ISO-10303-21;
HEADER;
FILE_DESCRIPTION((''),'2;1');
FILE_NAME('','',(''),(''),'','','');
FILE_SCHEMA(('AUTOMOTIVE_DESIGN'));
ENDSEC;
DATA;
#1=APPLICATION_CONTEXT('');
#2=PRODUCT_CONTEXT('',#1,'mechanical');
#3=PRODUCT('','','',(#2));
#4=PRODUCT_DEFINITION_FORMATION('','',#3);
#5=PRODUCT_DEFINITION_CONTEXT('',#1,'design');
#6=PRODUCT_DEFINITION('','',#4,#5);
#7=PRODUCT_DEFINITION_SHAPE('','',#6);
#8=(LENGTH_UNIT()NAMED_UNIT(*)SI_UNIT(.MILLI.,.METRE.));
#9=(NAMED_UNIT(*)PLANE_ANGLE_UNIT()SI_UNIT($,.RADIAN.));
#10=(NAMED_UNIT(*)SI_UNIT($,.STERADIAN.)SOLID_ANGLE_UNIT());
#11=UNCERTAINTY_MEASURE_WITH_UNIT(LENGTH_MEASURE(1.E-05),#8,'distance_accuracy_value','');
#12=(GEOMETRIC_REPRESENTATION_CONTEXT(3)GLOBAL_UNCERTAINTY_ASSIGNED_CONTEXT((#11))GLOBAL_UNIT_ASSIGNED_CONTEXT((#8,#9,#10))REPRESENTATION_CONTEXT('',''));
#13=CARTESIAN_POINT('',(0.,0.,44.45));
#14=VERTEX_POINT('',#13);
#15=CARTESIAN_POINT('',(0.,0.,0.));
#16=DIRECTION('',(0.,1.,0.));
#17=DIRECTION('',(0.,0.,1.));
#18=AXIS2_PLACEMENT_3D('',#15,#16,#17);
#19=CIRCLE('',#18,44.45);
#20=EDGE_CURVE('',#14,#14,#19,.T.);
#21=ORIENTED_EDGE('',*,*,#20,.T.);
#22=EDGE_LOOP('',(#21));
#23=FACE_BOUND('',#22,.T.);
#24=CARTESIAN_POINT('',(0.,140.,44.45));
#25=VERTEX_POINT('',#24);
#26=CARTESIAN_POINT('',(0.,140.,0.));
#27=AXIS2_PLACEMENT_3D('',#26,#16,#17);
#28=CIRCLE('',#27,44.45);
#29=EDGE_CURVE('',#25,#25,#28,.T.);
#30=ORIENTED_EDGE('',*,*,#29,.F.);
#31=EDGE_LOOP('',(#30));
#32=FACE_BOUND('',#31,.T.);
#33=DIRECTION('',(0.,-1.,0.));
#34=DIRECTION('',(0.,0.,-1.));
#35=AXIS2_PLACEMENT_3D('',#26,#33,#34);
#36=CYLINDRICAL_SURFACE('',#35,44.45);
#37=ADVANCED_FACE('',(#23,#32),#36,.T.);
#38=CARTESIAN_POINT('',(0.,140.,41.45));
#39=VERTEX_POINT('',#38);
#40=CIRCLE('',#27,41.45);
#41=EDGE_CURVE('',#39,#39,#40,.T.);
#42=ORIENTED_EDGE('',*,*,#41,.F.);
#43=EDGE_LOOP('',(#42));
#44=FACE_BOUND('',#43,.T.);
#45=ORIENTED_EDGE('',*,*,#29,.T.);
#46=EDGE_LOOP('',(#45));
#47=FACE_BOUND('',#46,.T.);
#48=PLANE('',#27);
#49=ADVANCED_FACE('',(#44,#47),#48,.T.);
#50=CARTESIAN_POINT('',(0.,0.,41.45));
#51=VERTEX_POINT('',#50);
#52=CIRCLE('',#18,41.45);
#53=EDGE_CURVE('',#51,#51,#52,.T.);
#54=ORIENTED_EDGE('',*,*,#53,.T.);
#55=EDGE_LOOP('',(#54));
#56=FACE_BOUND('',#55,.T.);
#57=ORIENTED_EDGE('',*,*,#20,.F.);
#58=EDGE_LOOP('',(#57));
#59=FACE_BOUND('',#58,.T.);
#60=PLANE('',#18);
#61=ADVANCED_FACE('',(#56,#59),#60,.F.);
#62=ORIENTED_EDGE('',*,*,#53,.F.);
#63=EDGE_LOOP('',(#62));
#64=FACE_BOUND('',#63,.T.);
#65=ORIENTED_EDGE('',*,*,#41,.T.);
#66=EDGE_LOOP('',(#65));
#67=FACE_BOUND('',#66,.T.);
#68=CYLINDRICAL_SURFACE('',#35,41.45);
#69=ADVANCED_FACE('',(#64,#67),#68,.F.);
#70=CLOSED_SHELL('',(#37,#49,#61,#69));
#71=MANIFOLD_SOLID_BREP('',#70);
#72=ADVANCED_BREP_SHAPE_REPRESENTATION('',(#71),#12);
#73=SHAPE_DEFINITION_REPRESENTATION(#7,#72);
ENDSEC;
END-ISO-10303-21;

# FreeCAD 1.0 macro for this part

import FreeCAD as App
import Part
import Sketcher

V = App.Vector

doc = App.newDocument("Part")
body = doc.addObject("PartDesign::Body", "Body")

# Sketch on XZ plane
sketch1 = doc.addObject("Sketcher::SketchObject", "Sketch")
body.addObject(sketch1)
sketch1.AttachmentSupport = (doc.XZ_Plane, [""])
sketch1.MapMode = "FlatFace"
sketch1.addGeometry([
    Part.Circle(V(0, 0, 0), V(0, 0, 1), 44),
    Part.Circle(V(0, 0, 0), V(0, 0, 1), 41),
], False)
sketch1.addConstraint([
    Sketcher.Constraint("Coincident", 0, 3, -1, 1),
    Sketcher.Constraint("Coincident", 1, 3, -1, 1),
    Sketcher.Constraint("Diameter", 0, 88.9),
    Sketcher.Constraint("Diameter", 1, 82.9),
])
pad1 = doc.addObject("PartDesign::Pad", "Pad")
body.addObject(pad1)
pad1.Profile = sketch1
pad1.Length = 140
pad1.Reversed = True

doc.recompute()
